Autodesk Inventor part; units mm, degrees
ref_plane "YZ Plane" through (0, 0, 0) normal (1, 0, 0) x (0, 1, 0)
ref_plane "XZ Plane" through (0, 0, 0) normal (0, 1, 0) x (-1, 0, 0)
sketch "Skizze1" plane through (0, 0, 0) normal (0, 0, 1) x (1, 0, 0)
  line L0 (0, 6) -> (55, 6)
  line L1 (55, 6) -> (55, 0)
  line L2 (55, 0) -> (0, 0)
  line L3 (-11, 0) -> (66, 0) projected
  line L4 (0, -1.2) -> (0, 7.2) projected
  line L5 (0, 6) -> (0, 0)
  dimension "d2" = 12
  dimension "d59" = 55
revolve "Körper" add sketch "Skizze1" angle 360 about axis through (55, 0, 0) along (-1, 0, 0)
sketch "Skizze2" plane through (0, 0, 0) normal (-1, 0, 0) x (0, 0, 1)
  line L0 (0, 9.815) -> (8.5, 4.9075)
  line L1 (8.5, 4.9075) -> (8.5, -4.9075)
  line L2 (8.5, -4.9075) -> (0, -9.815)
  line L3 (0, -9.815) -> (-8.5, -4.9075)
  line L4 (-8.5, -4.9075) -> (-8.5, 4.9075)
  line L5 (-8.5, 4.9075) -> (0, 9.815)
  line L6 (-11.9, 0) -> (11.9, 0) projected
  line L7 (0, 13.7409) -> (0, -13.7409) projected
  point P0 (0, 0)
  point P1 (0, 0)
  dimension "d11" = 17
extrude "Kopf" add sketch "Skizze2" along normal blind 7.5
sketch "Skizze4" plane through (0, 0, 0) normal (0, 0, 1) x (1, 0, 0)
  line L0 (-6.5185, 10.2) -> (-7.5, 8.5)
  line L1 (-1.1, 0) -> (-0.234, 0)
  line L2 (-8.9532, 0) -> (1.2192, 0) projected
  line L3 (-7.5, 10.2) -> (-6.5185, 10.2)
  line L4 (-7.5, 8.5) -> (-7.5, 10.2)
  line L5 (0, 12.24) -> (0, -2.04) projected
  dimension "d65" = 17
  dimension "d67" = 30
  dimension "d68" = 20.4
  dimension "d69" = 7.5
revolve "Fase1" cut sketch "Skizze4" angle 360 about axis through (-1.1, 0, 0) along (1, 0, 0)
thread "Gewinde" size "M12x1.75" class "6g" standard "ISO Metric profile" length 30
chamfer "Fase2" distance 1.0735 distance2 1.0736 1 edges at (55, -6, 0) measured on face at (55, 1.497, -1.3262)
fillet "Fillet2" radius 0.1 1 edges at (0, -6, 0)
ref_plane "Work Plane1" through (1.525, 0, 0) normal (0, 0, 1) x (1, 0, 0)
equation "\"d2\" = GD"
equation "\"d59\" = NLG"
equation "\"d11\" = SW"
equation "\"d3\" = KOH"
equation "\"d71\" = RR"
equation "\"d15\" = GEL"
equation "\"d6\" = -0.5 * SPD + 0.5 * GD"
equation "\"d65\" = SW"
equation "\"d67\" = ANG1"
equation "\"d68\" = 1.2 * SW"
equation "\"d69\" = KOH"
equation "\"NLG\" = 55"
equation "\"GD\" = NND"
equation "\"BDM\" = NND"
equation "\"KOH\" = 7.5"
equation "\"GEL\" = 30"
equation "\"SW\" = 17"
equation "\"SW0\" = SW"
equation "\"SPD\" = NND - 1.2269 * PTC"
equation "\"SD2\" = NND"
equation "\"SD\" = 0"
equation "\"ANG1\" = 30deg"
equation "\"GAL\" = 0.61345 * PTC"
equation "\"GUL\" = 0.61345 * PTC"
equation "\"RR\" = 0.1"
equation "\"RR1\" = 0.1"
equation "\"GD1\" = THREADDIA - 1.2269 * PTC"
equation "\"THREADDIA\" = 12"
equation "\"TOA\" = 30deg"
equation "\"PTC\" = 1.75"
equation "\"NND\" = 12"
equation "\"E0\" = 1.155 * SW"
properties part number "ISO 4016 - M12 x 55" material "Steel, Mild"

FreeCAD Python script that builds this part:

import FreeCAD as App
import Part
import Sketcher
Q = App.Units.Quantity


def edges_at(feature, points):
    """Names of the edges that pass closest to the given points."""
    edges = feature.Shape.Edges
    near = lambda p: min(range(len(edges)), key=lambda i: edges[i].distToShape(Part.Vertex(*p))[0])
    return sorted({f"Edge{near(p) + 1}" for p in points})


def add_polygon(sketch, points):
    """Adds a closed chain of lines whose ends are joined by coincident constraints."""
    first, n = sketch.GeometryCount, len(points)
    for a, b in zip(points, points[1:] + points[:1]):
        sketch.addGeometry(Part.LineSegment(App.Vector(*a, 0), App.Vector(*b, 0)), False)
    for i in range(n):
        sketch.addConstraint(Sketcher.Constraint("Coincident", first + i, 2, first + (i + 1) % n, 1))

doc = App.newDocument("Part")
body = doc.addObject("PartDesign::Body", "Body")

# Sketch on XY plane
sketch1 = body.newObject("Sketcher::SketchObject", "Sketch")
sketch1.AttachmentSupport = (doc.getObject("XY_Plane"), [""])
sketch1.MapMode = "FlatFace"
add_polygon(sketch1, [(55, 6), (0, 6), (0, 0), (55, 0)])  # lines 0-3
sketch1.addConstraint(Sketcher.Constraint("Horizontal", 0))
sketch1.addConstraint(Sketcher.Constraint("Vertical", 1))
sketch1.addConstraint(Sketcher.Constraint("Horizontal", 2))
sketch1.addConstraint(Sketcher.Constraint("Vertical", 3))
sketch1.addConstraint(Sketcher.Constraint("Coincident", 1, 2, -1, 1))
sketch1.addConstraint(Sketcher.Constraint("DistanceX", 0, 2, 0, 1, Q("55 mm")))
sketch1.addConstraint(Sketcher.Constraint("DistanceY", 1, 2, 1, 1, Q("6 mm")))
revolution = body.newObject("PartDesign::Revolution", "Revolution")
revolution.Profile = sketch1
revolution.ReferenceAxis = (sketch1, ["H_Axis"])
revolution.Angle = 360

# Sketch on YZ plane
sketch2 = body.newObject("Sketcher::SketchObject", "Sketch001")
sketch2.AttachmentSupport = (doc.getObject("YZ_Plane"), [""])
sketch2.MapMode = "FlatFace"
add_polygon(sketch2, [(5, -8), (-5, -8), (-10, 0), (-5, 8), (5, 8), (10, 0)])  # lines 0-5
sketch2.addConstraint(Sketcher.Constraint("Horizontal", 0))
sketch2.addConstraint(Sketcher.Constraint("Horizontal", 3))
sketch2.addConstraint(Sketcher.Constraint("Symmetric", 0, 2, 3, 2, -1, 1))
sketch2.addConstraint(Sketcher.Constraint("Symmetric", 1, 2, 4, 2, -1, 1))
sketch2.addConstraint(Sketcher.Constraint("PointOnObject", 1, 2, -1))
sketch2.addConstraint(Sketcher.Constraint("Parallel", 2, 5))
sketch2.addConstraint(Sketcher.Constraint("Vertical", 0, 2, 2, 2))
sketch2.addConstraint(Sketcher.Constraint("DistanceY", 0, 2, 2, 2, Q("17 mm")))
sketch2.addConstraint(Sketcher.Constraint("Angle", 1, Q("120 deg")))
sketch2.addConstraint(Sketcher.Constraint("DistanceX", 0, 2, 0, 1, Q("9.815 mm")))
pad1 = body.newObject("PartDesign::Pad", "Pad")
pad1.Profile = sketch2
pad1.Length = 7.5
pad1.Reversed = True

# Sketch on XY plane
sketch3 = body.newObject("Sketcher::SketchObject", "Sketch002")
sketch3.AttachmentSupport = (doc.getObject("XY_Plane"), [""])
sketch3.MapMode = "FlatFace"
add_polygon(sketch3, [(-7.5, 8.5), (-6.5, 10.2), (-7.5, 10.2)])  # lines 0-2
sketch3.addConstraint(Sketcher.Constraint("Horizontal", 1))
sketch3.addConstraint(Sketcher.Constraint("Vertical", 2))
sketch3.addConstraint(Sketcher.Constraint("DistanceX", 1, 2, -1, 1, Q("7.5 mm")))
sketch3.addConstraint(Sketcher.Constraint("Angle", 0, Q("60 deg")))
sketch3.addConstraint(Sketcher.Constraint("DistanceY", 2, 2, 2, 1, Q("1.7 mm")))
sketch3.addConstraint(Sketcher.Constraint("DistanceY", -1, 1, 0, 2, Q("10.2 mm")))
groove = body.newObject("PartDesign::Groove", "Groove")
groove.Profile = sketch3
groove.ReferenceAxis = (sketch3, ["H_Axis"])
groove.Angle = 360
doc.recompute()

chamfer = body.newObject("PartDesign::Chamfer", "Chamfer")
chamfer.Base = (groove, edges_at(groove, [(55, -6, 0)]))
chamfer.ChamferType = "Two distances"
chamfer.Size = 1.0735
chamfer.Size2 = 1.0736
doc.recompute()

fillet = body.newObject("PartDesign::Fillet", "Fillet")
fillet.Base = (chamfer, edges_at(chamfer, [(0, -6, 0)]))
fillet.Radius = 0.1

doc.recompute()
